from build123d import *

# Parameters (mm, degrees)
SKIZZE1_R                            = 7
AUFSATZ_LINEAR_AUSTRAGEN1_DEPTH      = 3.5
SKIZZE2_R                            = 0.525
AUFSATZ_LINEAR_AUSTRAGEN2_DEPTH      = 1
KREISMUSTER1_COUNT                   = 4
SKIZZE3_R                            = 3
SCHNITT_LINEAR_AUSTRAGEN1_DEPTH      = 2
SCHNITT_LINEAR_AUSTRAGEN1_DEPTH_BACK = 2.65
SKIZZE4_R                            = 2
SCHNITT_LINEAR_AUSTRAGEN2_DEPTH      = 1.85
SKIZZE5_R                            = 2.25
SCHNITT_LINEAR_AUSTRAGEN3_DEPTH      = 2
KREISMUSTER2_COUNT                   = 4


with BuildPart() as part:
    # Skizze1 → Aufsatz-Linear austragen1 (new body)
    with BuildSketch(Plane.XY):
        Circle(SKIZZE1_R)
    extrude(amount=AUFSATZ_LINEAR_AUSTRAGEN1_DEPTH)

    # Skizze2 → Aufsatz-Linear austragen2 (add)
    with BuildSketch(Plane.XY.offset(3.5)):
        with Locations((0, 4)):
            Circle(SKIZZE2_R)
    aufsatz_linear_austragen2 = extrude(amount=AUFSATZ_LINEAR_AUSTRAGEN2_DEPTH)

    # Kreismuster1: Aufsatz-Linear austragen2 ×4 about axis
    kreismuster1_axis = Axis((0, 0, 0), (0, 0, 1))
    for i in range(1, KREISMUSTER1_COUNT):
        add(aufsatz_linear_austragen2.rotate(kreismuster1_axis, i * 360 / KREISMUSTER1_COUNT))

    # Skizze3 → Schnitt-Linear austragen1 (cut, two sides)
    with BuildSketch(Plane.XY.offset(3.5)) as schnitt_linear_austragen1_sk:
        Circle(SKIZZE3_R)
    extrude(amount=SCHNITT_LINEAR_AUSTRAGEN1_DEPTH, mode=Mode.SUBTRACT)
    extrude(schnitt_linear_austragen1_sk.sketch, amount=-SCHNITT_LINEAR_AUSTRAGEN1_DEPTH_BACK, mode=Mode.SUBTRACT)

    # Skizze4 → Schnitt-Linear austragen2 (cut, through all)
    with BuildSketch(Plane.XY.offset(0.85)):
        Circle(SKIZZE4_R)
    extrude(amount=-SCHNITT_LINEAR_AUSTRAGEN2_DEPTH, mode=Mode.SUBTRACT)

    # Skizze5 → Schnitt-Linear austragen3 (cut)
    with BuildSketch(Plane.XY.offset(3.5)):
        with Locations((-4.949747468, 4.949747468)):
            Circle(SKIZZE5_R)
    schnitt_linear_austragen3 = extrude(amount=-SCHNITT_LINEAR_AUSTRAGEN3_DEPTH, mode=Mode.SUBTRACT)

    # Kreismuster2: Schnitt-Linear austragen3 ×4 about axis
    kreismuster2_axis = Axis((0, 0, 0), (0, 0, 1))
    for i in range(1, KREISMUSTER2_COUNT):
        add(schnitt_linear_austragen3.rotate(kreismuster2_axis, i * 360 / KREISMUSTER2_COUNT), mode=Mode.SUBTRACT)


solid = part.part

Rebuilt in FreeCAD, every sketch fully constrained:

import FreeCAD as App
import Part
import Sketcher
from FreeCAD import Vector

doc = App.newDocument("Part")
body = doc.addObject("PartDesign::Body", "Body")

sketch1 = body.newObject("Sketcher::SketchObject", "Sketch")
sketch1.AttachmentSupport = (doc.getObject("XY_Plane"), [""])
sketch1.MapMode = "FlatFace"
sketch1.addGeometry(Part.Circle(Vector(0, 0, 0), Vector(0, 0, 1), 7), False)
sketch1.addConstraint([
    Sketcher.Constraint("Coincident", 0, 3, -1, 1),
    Sketcher.Constraint("Diameter", 0, 14.0),
])
pad1 = body.newObject("PartDesign::Pad", "Pad")
pad1.Profile = sketch1
pad1.Length = 3.5

sketch2 = body.newObject("Sketcher::SketchObject", "Sketch001")
sketch2.AttachmentSupport = (doc.getObject("XY_Plane"), [""])
sketch2.MapMode = "FlatFace"
sketch2.AttachmentOffset = App.Placement(Vector(0, 0, 3.5), App.Rotation())
sketch2.addGeometry(Part.Circle(Vector(0, 4, 0), Vector(0, 0, 1), 0.5), False)
sketch2.addConstraint([
    Sketcher.Constraint("PointOnObject", 0, 3, -2),
    Sketcher.Constraint("Diameter", 0, 1.05),
    Sketcher.Constraint("DistanceY", -1, 1, 0, 3, 4.0),
])
pad2 = body.newObject("PartDesign::Pad", "Pad001")
pad2.Profile = sketch2
pad2.Length = 1
doc.recompute()

polarpattern = body.newObject("PartDesign::PolarPattern", "PolarPattern")
polarpattern.Originals = [pad2]
polarpattern.Axis = (doc.getObject("Z_Axis"), [""])
polarpattern.Angle = 360
polarpattern.Occurrences = 4
body.Tip = polarpattern

sketch3 = body.newObject("Sketcher::SketchObject", "Sketch002")
sketch3.AttachmentSupport = (doc.getObject("XY_Plane"), [""])
sketch3.MapMode = "FlatFace"
sketch3.AttachmentOffset = App.Placement(Vector(0, 0, 3.5), App.Rotation())
sketch3.addGeometry(Part.Circle(Vector(0, 0, 0), Vector(0, 0, 1), 3), False)
sketch3.addConstraint([
    Sketcher.Constraint("Coincident", 0, 3, -1, 1),
    Sketcher.Constraint("Diameter", 0, 6.0),
])
pocket1 = body.newObject("PartDesign::Pocket", "Pocket")
pocket1.Profile = sketch3
pocket1.Type = "TwoLengths"
pocket1.Length = 2
pocket1.Length2 = 2.65
pocket1.Reversed = True

sketch4 = body.newObject("Sketcher::SketchObject", "Sketch003")
sketch4.AttachmentSupport = (doc.getObject("XY_Plane"), [""])
sketch4.MapMode = "FlatFace"
sketch4.AttachmentOffset = App.Placement(Vector(0, 0, 0.85), App.Rotation())
sketch4.addGeometry(Part.Circle(Vector(0, 0, 0), Vector(0, 0, 1), 2), False)
sketch4.addConstraint([
    Sketcher.Constraint("Coincident", 0, 3, -1, 1),
    Sketcher.Constraint("Diameter", 0, 4.0),
])
pocket2 = body.newObject("PartDesign::Pocket", "Pocket001")
pocket2.Profile = sketch4
pocket2.Type = "ThroughAll"

sketch5 = body.newObject("Sketcher::SketchObject", "Sketch004")
sketch5.AttachmentSupport = (doc.getObject("XY_Plane"), [""])
sketch5.MapMode = "FlatFace"
sketch5.AttachmentOffset = App.Placement(Vector(0, 0, 3.5), App.Rotation())
sketch5.addGeometry(Part.Circle(Vector(-4.9, 4.9, 0), Vector(0, 0, 1), 2.2), False)
sketch5.addConstraint([
    Sketcher.Constraint("Diameter", 0, 4.5),
    Sketcher.Constraint("DistanceX", 0, 3, -1, 1, 4.949747),
    Sketcher.Constraint("DistanceY", -1, 1, 0, 3, 4.949747),
])
pocket3 = body.newObject("PartDesign::Pocket", "Pocket002")
pocket3.Profile = sketch5
pocket3.Length = 2
doc.recompute()

polarpattern2 = body.newObject("PartDesign::PolarPattern", "PolarPattern001")
polarpattern2.Originals = [pocket3]
polarpattern2.Axis = (doc.getObject("Z_Axis"), [""])
polarpattern2.Angle = 360
polarpattern2.Occurrences = 4
body.Tip = polarpattern2

doc.recompute()
